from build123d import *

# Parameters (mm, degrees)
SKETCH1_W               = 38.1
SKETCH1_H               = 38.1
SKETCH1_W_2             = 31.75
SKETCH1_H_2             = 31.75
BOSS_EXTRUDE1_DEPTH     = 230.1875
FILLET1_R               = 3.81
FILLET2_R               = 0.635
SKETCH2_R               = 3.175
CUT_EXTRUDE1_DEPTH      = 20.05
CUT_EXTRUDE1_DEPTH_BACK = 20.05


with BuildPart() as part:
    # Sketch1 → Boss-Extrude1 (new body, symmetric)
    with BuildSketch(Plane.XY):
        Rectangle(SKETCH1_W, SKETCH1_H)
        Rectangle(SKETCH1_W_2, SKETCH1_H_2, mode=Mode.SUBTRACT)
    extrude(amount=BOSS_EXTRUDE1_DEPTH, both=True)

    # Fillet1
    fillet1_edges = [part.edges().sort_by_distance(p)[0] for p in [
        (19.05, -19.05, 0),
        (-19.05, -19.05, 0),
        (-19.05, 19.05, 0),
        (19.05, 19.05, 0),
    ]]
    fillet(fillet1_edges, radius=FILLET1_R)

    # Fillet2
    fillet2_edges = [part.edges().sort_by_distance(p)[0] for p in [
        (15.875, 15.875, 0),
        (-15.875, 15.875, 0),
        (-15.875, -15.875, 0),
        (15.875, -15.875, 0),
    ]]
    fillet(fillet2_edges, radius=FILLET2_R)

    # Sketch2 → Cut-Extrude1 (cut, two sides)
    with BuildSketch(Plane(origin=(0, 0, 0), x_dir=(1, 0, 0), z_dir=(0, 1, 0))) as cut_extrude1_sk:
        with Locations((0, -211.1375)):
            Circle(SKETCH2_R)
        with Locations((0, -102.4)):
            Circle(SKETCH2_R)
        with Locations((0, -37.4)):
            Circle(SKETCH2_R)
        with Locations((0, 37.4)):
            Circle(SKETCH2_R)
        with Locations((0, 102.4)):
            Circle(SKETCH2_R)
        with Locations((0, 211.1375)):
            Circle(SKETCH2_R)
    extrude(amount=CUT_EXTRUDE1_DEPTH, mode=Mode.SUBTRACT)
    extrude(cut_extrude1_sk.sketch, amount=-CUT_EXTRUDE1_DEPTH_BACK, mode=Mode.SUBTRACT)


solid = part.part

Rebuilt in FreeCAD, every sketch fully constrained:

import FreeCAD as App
import Part
import Sketcher

V = App.Vector
Q = App.Units.Quantity


def edges_at(feature, points):
    """Names of the edges that pass closest to the given points."""
    edges = feature.Shape.Edges
    near = lambda p: min(range(len(edges)), key=lambda i: edges[i].distToShape(Part.Vertex(*p))[0])
    return sorted({f"Edge{near(p) + 1}" for p in points})


def add_polygon(sketch, points):
    """Adds a closed chain of lines whose ends are joined by coincident constraints."""
    first, n = sketch.GeometryCount, len(points)
    for a, b in zip(points, points[1:] + points[:1]):
        sketch.addGeometry(Part.LineSegment(App.Vector(*a, 0), App.Vector(*b, 0)), False)
    for i in range(n):
        sketch.addConstraint(Sketcher.Constraint("Coincident", first + i, 2, first + (i + 1) % n, 1))

doc = App.newDocument("Part")
body = doc.addObject("PartDesign::Body", "Body")

sketch1 = body.newObject("Sketcher::SketchObject", "Sketch")
sketch1.AttachmentSupport = (doc.getObject("XY_Plane"), [""])
sketch1.MapMode = "FlatFace"
add_polygon(sketch1, [(-19.05, 19.05), (-19.05, -19.05), (19.05, -19.05), (19.05, 19.05)])
add_polygon(sketch1, [(15.875, -15.875), (-15.875, -15.875), (-15.875, 15.875), (15.875, 15.875)])
sketch1.addConstraint([
    Sketcher.Constraint("Vertical", 0),
    Sketcher.Constraint("Horizontal", 1),
    Sketcher.Constraint("Vertical", 2),
    Sketcher.Constraint("Horizontal", 3),
    Sketcher.Constraint("Horizontal", 4),
    Sketcher.Constraint("Vertical", 5),
    Sketcher.Constraint("Horizontal", 6),
    Sketcher.Constraint("Vertical", 7),
    Sketcher.Constraint("Symmetric", 0, 2, 2, 2, -1, 1),
    Sketcher.Constraint("Symmetric", 4, 2, 6, 2, -1, 1),
    Sketcher.Constraint("Equal", 3, 0),
    Sketcher.Constraint("Equal", 6, 5),
    Sketcher.Constraint("DistanceX", 1, 1, 1, 2, Q("1.5 in")),
    Sketcher.Constraint("DistanceX", 4, 2, 4, 1, Q("1.25 in")),
])
pad1 = body.newObject("PartDesign::Pad", "Pad")
pad1.Profile = sketch1
pad1.Length = Q("18.125 in")
pad1.Midplane = True
doc.recompute()

fillet = body.newObject("PartDesign::Fillet", "Fillet")
fillet.Base = (pad1, edges_at(pad1, [
    (19.05, -19.05, 0),
    (-19.05, -19.05, 0),
    (-19.05, 19.05, 0),
    (19.05, 19.05, 0),
]))
fillet.Radius = Q("0.15 in")
doc.recompute()

fillet2 = body.newObject("PartDesign::Fillet", "Fillet001")
fillet2.Base = (fillet, edges_at(fillet, [
    (15.875, 15.875, 0),
    (-15.875, 15.875, 0),
    (-15.875, -15.875, 0),
    (15.875, -15.875, 0),
]))
fillet2.Radius = Q("0.025 in")

sketch2 = body.newObject("Sketcher::SketchObject", "Sketch001")
sketch2.AttachmentSupport = (doc.getObject("XZ_Plane"), [""])
sketch2.MapMode = "FlatFace"
sketch2.addGeometry([
    Part.Circle(V(0, 211.1375, 0), V(0, 0, 1), 3.175),
    Part.Circle(V(0, 102.4, 0), V(0, 0, 1), 3.175),
    Part.Circle(V(0, 37.4, 0), V(0, 0, 1), 3.175),
    Part.Circle(V(0, -37.4, 0), V(0, 0, 1), 3.175),
    Part.Circle(V(0, -102.4, 0), V(0, 0, 1), 3.175),
    Part.Circle(V(0, -211.1375, 0), V(0, 0, 1), 3.175),
], False)
sketch2.addConstraint([
    Sketcher.Constraint("Equal", 0, 1),
    Sketcher.Constraint("Equal", 1, 2),
    Sketcher.Constraint("Equal", 2, 3),
    Sketcher.Constraint("Equal", 3, 4),
    Sketcher.Constraint("Equal", 4, 5),
    Sketcher.Constraint("Symmetric", 2, 3, 3, 3, -1, 1),
    Sketcher.Constraint("Symmetric", 1, 3, 4, 3, -1, 1),
    Sketcher.Constraint("Symmetric", 0, 3, 5, 3, -1, 1),
    Sketcher.Constraint("PointOnObject", 0, 3, -2),
    Sketcher.Constraint("PointOnObject", 1, 3, -2),
    Sketcher.Constraint("PointOnObject", 2, 3, -2),
    Sketcher.Constraint("Diameter", 0, Q("0.25 in")),
    Sketcher.Constraint("DistanceY", -1, 1, 0, 3, Q("8.3125 in")),
    Sketcher.Constraint("DistanceY", -1, 1, 1, 3, 102.4),
    Sketcher.Constraint("DistanceY", -1, 1, 2, 3, 37.4),
])
pocket1 = body.newObject("PartDesign::Pocket", "Pocket")
pocket1.Profile = sketch2
pocket1.Type = "ThroughAll"
pocket1.Midplane = True

doc.recompute()
